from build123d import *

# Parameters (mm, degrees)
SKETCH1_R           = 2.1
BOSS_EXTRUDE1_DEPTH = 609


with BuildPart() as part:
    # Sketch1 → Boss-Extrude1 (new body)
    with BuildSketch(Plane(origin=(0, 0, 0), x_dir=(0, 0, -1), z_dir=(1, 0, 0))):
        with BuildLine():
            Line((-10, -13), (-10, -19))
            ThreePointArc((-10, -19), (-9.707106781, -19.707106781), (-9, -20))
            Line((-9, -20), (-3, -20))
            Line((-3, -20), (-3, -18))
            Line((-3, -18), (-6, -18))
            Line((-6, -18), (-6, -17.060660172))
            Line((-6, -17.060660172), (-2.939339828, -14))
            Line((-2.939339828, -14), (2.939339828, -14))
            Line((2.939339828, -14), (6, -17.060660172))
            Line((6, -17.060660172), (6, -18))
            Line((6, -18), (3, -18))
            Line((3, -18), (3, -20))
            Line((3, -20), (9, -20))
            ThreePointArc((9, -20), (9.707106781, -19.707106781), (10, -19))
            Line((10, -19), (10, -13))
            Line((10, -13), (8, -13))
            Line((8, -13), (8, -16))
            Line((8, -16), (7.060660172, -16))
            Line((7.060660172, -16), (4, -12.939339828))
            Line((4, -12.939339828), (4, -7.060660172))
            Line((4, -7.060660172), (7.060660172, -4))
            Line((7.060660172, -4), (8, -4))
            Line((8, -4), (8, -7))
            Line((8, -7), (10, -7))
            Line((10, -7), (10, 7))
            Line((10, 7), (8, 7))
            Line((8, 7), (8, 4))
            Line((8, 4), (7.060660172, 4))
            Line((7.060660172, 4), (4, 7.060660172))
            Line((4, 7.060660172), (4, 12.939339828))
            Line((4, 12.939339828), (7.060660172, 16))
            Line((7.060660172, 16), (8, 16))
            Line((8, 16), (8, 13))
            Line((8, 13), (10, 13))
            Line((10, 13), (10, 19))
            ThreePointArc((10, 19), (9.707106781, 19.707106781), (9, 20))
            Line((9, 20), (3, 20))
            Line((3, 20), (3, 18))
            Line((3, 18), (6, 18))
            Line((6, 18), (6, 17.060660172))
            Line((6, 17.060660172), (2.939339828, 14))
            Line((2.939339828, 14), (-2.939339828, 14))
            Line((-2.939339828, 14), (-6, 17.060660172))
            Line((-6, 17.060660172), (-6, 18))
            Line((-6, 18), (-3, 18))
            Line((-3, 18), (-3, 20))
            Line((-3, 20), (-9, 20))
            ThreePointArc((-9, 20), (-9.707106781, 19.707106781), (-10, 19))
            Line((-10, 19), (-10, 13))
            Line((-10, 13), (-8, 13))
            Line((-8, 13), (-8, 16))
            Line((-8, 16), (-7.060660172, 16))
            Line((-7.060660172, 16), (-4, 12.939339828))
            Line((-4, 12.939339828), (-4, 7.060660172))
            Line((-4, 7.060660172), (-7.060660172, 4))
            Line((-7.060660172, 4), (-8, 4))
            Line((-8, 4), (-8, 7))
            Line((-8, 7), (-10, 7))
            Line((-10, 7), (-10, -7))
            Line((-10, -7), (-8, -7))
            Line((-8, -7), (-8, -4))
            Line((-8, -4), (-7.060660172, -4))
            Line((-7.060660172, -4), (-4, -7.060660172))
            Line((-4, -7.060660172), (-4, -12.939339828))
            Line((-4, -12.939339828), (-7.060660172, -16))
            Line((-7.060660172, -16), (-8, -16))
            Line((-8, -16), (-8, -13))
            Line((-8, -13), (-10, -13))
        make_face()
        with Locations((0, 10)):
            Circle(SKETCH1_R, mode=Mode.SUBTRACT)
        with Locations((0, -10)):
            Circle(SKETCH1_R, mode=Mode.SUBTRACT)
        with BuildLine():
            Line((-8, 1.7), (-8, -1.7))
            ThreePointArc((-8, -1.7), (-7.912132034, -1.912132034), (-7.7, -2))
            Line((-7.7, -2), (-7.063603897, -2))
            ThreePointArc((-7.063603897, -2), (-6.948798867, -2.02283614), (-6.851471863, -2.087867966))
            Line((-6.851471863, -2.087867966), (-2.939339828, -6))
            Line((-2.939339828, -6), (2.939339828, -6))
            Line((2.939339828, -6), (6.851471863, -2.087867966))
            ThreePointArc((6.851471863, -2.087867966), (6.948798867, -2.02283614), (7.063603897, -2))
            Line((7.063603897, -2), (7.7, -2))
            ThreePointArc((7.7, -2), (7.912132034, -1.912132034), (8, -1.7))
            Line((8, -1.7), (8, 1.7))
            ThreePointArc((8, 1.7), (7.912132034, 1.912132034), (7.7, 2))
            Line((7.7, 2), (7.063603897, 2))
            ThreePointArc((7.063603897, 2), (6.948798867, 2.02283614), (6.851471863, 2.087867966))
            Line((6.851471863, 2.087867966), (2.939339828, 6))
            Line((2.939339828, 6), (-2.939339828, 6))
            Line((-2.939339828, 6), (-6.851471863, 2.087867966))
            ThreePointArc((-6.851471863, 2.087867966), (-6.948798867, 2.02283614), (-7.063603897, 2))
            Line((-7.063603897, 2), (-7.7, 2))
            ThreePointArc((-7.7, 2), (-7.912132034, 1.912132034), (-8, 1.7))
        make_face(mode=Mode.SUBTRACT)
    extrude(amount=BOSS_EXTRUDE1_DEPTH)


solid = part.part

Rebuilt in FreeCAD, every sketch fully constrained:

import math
import FreeCAD as App
import Part
import Sketcher

V = App.Vector
Q = App.Units.Quantity

doc = App.newDocument("Part")
body = doc.addObject("PartDesign::Body", "Body")

sketch1 = body.newObject("Sketcher::SketchObject", "Sketch")
sketch1.AttachmentSupport = (doc.getObject("YZ_Plane"), [""])
sketch1.MapMode = "FlatFace"
sketch1.addGeometry(Part.LineSegment(V(-13, 10, 0), V(-19, 10, 0)), False)
sketch1.addGeometry(Part.ArcOfCircle(Part.Circle(V(-19, 9, 0), V(0, 0, 1), 1), math.radians(90), math.radians(180)), False)
sketch1.addGeometry(Part.LineSegment(V(-20, 9, 0), V(-20, 3, 0)), False)
sketch1.addGeometry(Part.LineSegment(V(-20, 3, 0), V(-18, 3, 0)), False)
sketch1.addGeometry(Part.LineSegment(V(-18, 3, 0), V(-18, 6, 0)), False)
sketch1.addGeometry(Part.LineSegment(V(-18, 6, 0), V(-17.06066, 6, 0)), False)
sketch1.addGeometry(Part.LineSegment(V(-17.06066, 6, 0), V(-14, 2.93934, 0)), False)
sketch1.addGeometry(Part.LineSegment(V(-14, 2.93934, 0), V(-14, -2.93934, 0)), False)
sketch1.addGeometry(Part.LineSegment(V(-14, -2.93934, 0), V(-17.06066, -6, 0)), False)
sketch1.addGeometry(Part.LineSegment(V(-17.06066, -6, 0), V(-18, -6, 0)), False)
sketch1.addGeometry(Part.LineSegment(V(-18, -6, 0), V(-18, -3, 0)), False)
sketch1.addGeometry(Part.LineSegment(V(-18, -3, 0), V(-20, -3, 0)), False)
sketch1.addGeometry(Part.LineSegment(V(-20, -3, 0), V(-20, -9, 0)), False)
sketch1.addGeometry(Part.ArcOfCircle(Part.Circle(V(-19, -9, 0), V(0, 0, 1), 1), math.radians(-180), math.radians(-90)), False)
sketch1.addGeometry(Part.LineSegment(V(-19, -10, 0), V(-13, -10, 0)), False)
sketch1.addGeometry(Part.LineSegment(V(-13, -10, 0), V(-13, -8, 0)), False)
sketch1.addGeometry(Part.LineSegment(V(-13, -8, 0), V(-16, -8, 0)), False)
sketch1.addGeometry(Part.LineSegment(V(-16, -8, 0), V(-16, -7.06066, 0)), False)
sketch1.addGeometry(Part.LineSegment(V(-16, -7.06066, 0), V(-12.93934, -4, 0)), False)
sketch1.addGeometry(Part.LineSegment(V(-12.93934, -4, 0), V(-7.06066, -4, 0)), False)
sketch1.addGeometry(Part.LineSegment(V(-7.06066, -4, 0), V(-4, -7.06066, 0)), False)
sketch1.addGeometry(Part.LineSegment(V(-4, -7.06066, 0), V(-4, -8, 0)), False)
sketch1.addGeometry(Part.LineSegment(V(-4, -8, 0), V(-7, -8, 0)), False)
sketch1.addGeometry(Part.LineSegment(V(-7, -8, 0), V(-7, -10, 0)), False)
sketch1.addGeometry(Part.LineSegment(V(-7, -10, 0), V(7, -10, 0)), False)
sketch1.addGeometry(Part.LineSegment(V(7, -10, 0), V(7, -8, 0)), False)
sketch1.addGeometry(Part.LineSegment(V(7, -8, 0), V(4, -8, 0)), False)
sketch1.addGeometry(Part.LineSegment(V(4, -8, 0), V(4, -7.06066, 0)), False)
sketch1.addGeometry(Part.LineSegment(V(4, -7.06066, 0), V(7.06066, -4, 0)), False)
sketch1.addGeometry(Part.LineSegment(V(7.06066, -4, 0), V(12.93934, -4, 0)), False)
sketch1.addGeometry(Part.LineSegment(V(12.93934, -4, 0), V(16, -7.06066, 0)), False)
sketch1.addGeometry(Part.LineSegment(V(16, -7.06066, 0), V(16, -8, 0)), False)
sketch1.addGeometry(Part.LineSegment(V(16, -8, 0), V(13, -8, 0)), False)
sketch1.addGeometry(Part.LineSegment(V(13, -8, 0), V(13, -10, 0)), False)
sketch1.addGeometry(Part.LineSegment(V(13, -10, 0), V(19, -10, 0)), False)
sketch1.addGeometry(Part.ArcOfCircle(Part.Circle(V(19, -9, 0), V(0, 0, 1), 1), math.radians(-90), math.radians(0)), False)
sketch1.addGeometry(Part.LineSegment(V(20, -9, 0), V(20, -3, 0)), False)
sketch1.addGeometry(Part.LineSegment(V(20, -3, 0), V(18, -3, 0)), False)
sketch1.addGeometry(Part.LineSegment(V(18, -3, 0), V(18, -6, 0)), False)
sketch1.addGeometry(Part.LineSegment(V(18, -6, 0), V(17.06066, -6, 0)), False)
sketch1.addGeometry(Part.LineSegment(V(17.06066, -6, 0), V(14, -2.93934, 0)), False)
sketch1.addGeometry(Part.LineSegment(V(14, -2.93934, 0), V(14, 2.93934, 0)), False)
sketch1.addGeometry(Part.LineSegment(V(14, 2.93934, 0), V(17.06066, 6, 0)), False)
sketch1.addGeometry(Part.LineSegment(V(17.06066, 6, 0), V(18, 6, 0)), False)
sketch1.addGeometry(Part.LineSegment(V(18, 6, 0), V(18, 3, 0)), False)
sketch1.addGeometry(Part.LineSegment(V(18, 3, 0), V(20, 3, 0)), False)
sketch1.addGeometry(Part.LineSegment(V(20, 3, 0), V(20, 9, 0)), False)
sketch1.addGeometry(Part.ArcOfCircle(Part.Circle(V(19, 9, 0), V(0, 0, 1), 1), math.radians(0), math.radians(90)), False)
sketch1.addGeometry(Part.LineSegment(V(19, 10, 0), V(13, 10, 0)), False)
sketch1.addGeometry(Part.LineSegment(V(13, 10, 0), V(13, 8, 0)), False)
sketch1.addGeometry(Part.LineSegment(V(13, 8, 0), V(16, 8, 0)), False)
sketch1.addGeometry(Part.LineSegment(V(16, 8, 0), V(16, 7.06066, 0)), False)
sketch1.addGeometry(Part.LineSegment(V(16, 7.06066, 0), V(12.93934, 4, 0)), False)
sketch1.addGeometry(Part.LineSegment(V(12.93934, 4, 0), V(7.06066, 4, 0)), False)
sketch1.addGeometry(Part.LineSegment(V(7.06066, 4, 0), V(4, 7.06066, 0)), False)
sketch1.addGeometry(Part.LineSegment(V(4, 7.06066, 0), V(4, 8, 0)), False)
sketch1.addGeometry(Part.LineSegment(V(4, 8, 0), V(7, 8, 0)), False)
sketch1.addGeometry(Part.LineSegment(V(7, 8, 0), V(7, 10, 0)), False)
sketch1.addGeometry(Part.LineSegment(V(7, 10, 0), V(-7, 10, 0)), False)
sketch1.addGeometry(Part.LineSegment(V(-7, 10, 0), V(-7, 8, 0)), False)
sketch1.addGeometry(Part.LineSegment(V(-7, 8, 0), V(-4, 8, 0)), False)
sketch1.addGeometry(Part.LineSegment(V(-4, 8, 0), V(-4, 7.06066, 0)), False)
sketch1.addGeometry(Part.LineSegment(V(-4, 7.06066, 0), V(-7.06066, 4, 0)), False)
sketch1.addGeometry(Part.LineSegment(V(-7.06066, 4, 0), V(-12.93934, 4, 0)), False)
sketch1.addGeometry(Part.LineSegment(V(-12.93934, 4, 0), V(-16, 7.06066, 0)), False)
sketch1.addGeometry(Part.LineSegment(V(-16, 7.06066, 0), V(-16, 8, 0)), False)
sketch1.addGeometry(Part.LineSegment(V(-16, 8, 0), V(-13, 8, 0)), False)
sketch1.addGeometry(Part.LineSegment(V(-13, 8, 0), V(-13, 10, 0)), False)
sketch1.addGeometry(Part.Circle(V(-10, 0, 0), V(0, 0, 1), 2.1), False)
sketch1.addGeometry(Part.LineSegment(V(-1.7, 8, 0), V(1.7, 8, 0)), False)
sketch1.addGeometry(Part.ArcOfCircle(Part.Circle(V(1.7, 7.7, 0), V(0, 0, 1), 0.3), math.radians(0), math.radians(90)), False)
sketch1.addGeometry(Part.LineSegment(V(2, 7.7, 0), V(2, 7.063604, 0)), False)
sketch1.addGeometry(Part.ArcOfCircle(Part.Circle(V(2.3, 7.063604, 0), V(0, 0, 1), 0.3), math.radians(180), math.radians(225.000001)), False)
sketch1.addGeometry(Part.LineSegment(V(2.087868, 6.851472, 0), V(6, 2.93934, 0)), False)
sketch1.addGeometry(Part.LineSegment(V(6, 2.93934, 0), V(6, -2.93934, 0)), False)
sketch1.addGeometry(Part.LineSegment(V(6, -2.93934, 0), V(2.087868, -6.851472, 0)), False)
sketch1.addGeometry(Part.ArcOfCircle(Part.Circle(V(2.3, -7.063604, 0), V(0, 0, 1), 0.3), math.radians(134.999999), math.radians(180)), False)
sketch1.addGeometry(Part.LineSegment(V(2, -7.063604, 0), V(2, -7.7, 0)), False)
sketch1.addGeometry(Part.ArcOfCircle(Part.Circle(V(1.7, -7.7, 0), V(0, 0, 1), 0.3), math.radians(-90), math.radians(0)), False)
sketch1.addGeometry(Part.LineSegment(V(1.7, -8, 0), V(-1.7, -8, 0)), False)
sketch1.addGeometry(Part.ArcOfCircle(Part.Circle(V(-1.7, -7.7, 0), V(0, 0, 1), 0.3), math.radians(-180), math.radians(-90)), False)
sketch1.addGeometry(Part.LineSegment(V(-2, -7.7, 0), V(-2, -7.063604, 0)), False)
sketch1.addGeometry(Part.ArcOfCircle(Part.Circle(V(-2.3, -7.063604, 0), V(0, 0, 1), 0.3), math.radians(0), math.radians(45.000001)), False)
sketch1.addGeometry(Part.LineSegment(V(-2.087868, -6.851472, 0), V(-6, -2.93934, 0)), False)
sketch1.addGeometry(Part.LineSegment(V(-6, -2.93934, 0), V(-6, 2.93934, 0)), False)
sketch1.addGeometry(Part.LineSegment(V(-6, 2.93934, 0), V(-2.087868, 6.851472, 0)), False)
sketch1.addGeometry(Part.ArcOfCircle(Part.Circle(V(-2.3, 7.063604, 0), V(0, 0, 1), 0.3), math.radians(-45.000001), math.radians(0)), False)
sketch1.addGeometry(Part.LineSegment(V(-2, 7.063604, 0), V(-2, 7.7, 0)), False)
sketch1.addGeometry(Part.ArcOfCircle(Part.Circle(V(-1.7, 7.7, 0), V(0, 0, 1), 0.3), math.radians(90), math.radians(180)), False)
sketch1.addGeometry(Part.Circle(V(10, 0, 0), V(0, 0, 1), 2.1), False)
sketch1.addConstraint(Sketcher.Constraint("Tangent", 0, 2, 1, 1))
sketch1.addConstraint(Sketcher.Constraint("Tangent", 1, 2, 2, 1))
sketch1.addConstraint(Sketcher.Constraint("Coincident", 2, 2, 3, 1))
sketch1.addConstraint(Sketcher.Constraint("Coincident", 3, 2, 4, 1))
sketch1.addConstraint(Sketcher.Constraint("Coincident", 4, 2, 5, 1))
sketch1.addConstraint(Sketcher.Constraint("Coincident", 5, 2, 6, 1))
sketch1.addConstraint(Sketcher.Constraint("Coincident", 6, 2, 7, 1))
sketch1.addConstraint(Sketcher.Constraint("Coincident", 7, 2, 8, 1))
sketch1.addConstraint(Sketcher.Constraint("Coincident", 8, 2, 9, 1))
sketch1.addConstraint(Sketcher.Constraint("Coincident", 9, 2, 10, 1))
sketch1.addConstraint(Sketcher.Constraint("Coincident", 10, 2, 11, 1))
sketch1.addConstraint(Sketcher.Constraint("Coincident", 11, 2, 12, 1))
sketch1.addConstraint(Sketcher.Constraint("Tangent", 12, 2, 13, 1))
sketch1.addConstraint(Sketcher.Constraint("Tangent", 13, 2, 14, 1))
sketch1.addConstraint(Sketcher.Constraint("Coincident", 14, 2, 15, 1))
sketch1.addConstraint(Sketcher.Constraint("Coincident", 15, 2, 16, 1))
sketch1.addConstraint(Sketcher.Constraint("Coincident", 16, 2, 17, 1))
sketch1.addConstraint(Sketcher.Constraint("Coincident", 17, 2, 18, 1))
sketch1.addConstraint(Sketcher.Constraint("Coincident", 18, 2, 19, 1))
sketch1.addConstraint(Sketcher.Constraint("Coincident", 19, 2, 20, 1))
sketch1.addConstraint(Sketcher.Constraint("Coincident", 20, 2, 21, 1))
sketch1.addConstraint(Sketcher.Constraint("Coincident", 21, 2, 22, 1))
sketch1.addConstraint(Sketcher.Constraint("Coincident", 22, 2, 23, 1))
sketch1.addConstraint(Sketcher.Constraint("Coincident", 23, 2, 24, 1))
sketch1.addConstraint(Sketcher.Constraint("Coincident", 24, 2, 25, 1))
sketch1.addConstraint(Sketcher.Constraint("Coincident", 25, 2, 26, 1))
sketch1.addConstraint(Sketcher.Constraint("Coincident", 26, 2, 27, 1))
sketch1.addConstraint(Sketcher.Constraint("Coincident", 27, 2, 28, 1))
sketch1.addConstraint(Sketcher.Constraint("Coincident", 28, 2, 29, 1))
sketch1.addConstraint(Sketcher.Constraint("Coincident", 29, 2, 30, 1))
sketch1.addConstraint(Sketcher.Constraint("Coincident", 30, 2, 31, 1))
sketch1.addConstraint(Sketcher.Constraint("Coincident", 31, 2, 32, 1))
sketch1.addConstraint(Sketcher.Constraint("Coincident", 32, 2, 33, 1))
sketch1.addConstraint(Sketcher.Constraint("Coincident", 33, 2, 34, 1))
sketch1.addConstraint(Sketcher.Constraint("Tangent", 34, 2, 35, 1))
sketch1.addConstraint(Sketcher.Constraint("Tangent", 35, 2, 36, 1))
sketch1.addConstraint(Sketcher.Constraint("Coincident", 36, 2, 37, 1))
sketch1.addConstraint(Sketcher.Constraint("Coincident", 37, 2, 38, 1))
sketch1.addConstraint(Sketcher.Constraint("Coincident", 38, 2, 39, 1))
sketch1.addConstraint(Sketcher.Constraint("Coincident", 39, 2, 40, 1))
sketch1.addConstraint(Sketcher.Constraint("Coincident", 40, 2, 41, 1))
sketch1.addConstraint(Sketcher.Constraint("Coincident", 41, 2, 42, 1))
sketch1.addConstraint(Sketcher.Constraint("Coincident", 42, 2, 43, 1))
sketch1.addConstraint(Sketcher.Constraint("Coincident", 43, 2, 44, 1))
sketch1.addConstraint(Sketcher.Constraint("Coincident", 44, 2, 45, 1))
sketch1.addConstraint(Sketcher.Constraint("Coincident", 45, 2, 46, 1))
sketch1.addConstraint(Sketcher.Constraint("Tangent", 46, 2, 47, 1))
sketch1.addConstraint(Sketcher.Constraint("Tangent", 47, 2, 48, 1))
sketch1.addConstraint(Sketcher.Constraint("Coincident", 48, 2, 49, 1))
sketch1.addConstraint(Sketcher.Constraint("Coincident", 49, 2, 50, 1))
sketch1.addConstraint(Sketcher.Constraint("Coincident", 50, 2, 51, 1))
sketch1.addConstraint(Sketcher.Constraint("Coincident", 51, 2, 52, 1))
sketch1.addConstraint(Sketcher.Constraint("Coincident", 52, 2, 53, 1))
sketch1.addConstraint(Sketcher.Constraint("Coincident", 53, 2, 54, 1))
sketch1.addConstraint(Sketcher.Constraint("Coincident", 54, 2, 55, 1))
sketch1.addConstraint(Sketcher.Constraint("Coincident", 55, 2, 56, 1))
sketch1.addConstraint(Sketcher.Constraint("Coincident", 56, 2, 57, 1))
sketch1.addConstraint(Sketcher.Constraint("Coincident", 57, 2, 58, 1))
sketch1.addConstraint(Sketcher.Constraint("Coincident", 58, 2, 59, 1))
sketch1.addConstraint(Sketcher.Constraint("Coincident", 59, 2, 60, 1))
sketch1.addConstraint(Sketcher.Constraint("Coincident", 60, 2, 61, 1))
sketch1.addConstraint(Sketcher.Constraint("Coincident", 61, 2, 62, 1))
sketch1.addConstraint(Sketcher.Constraint("Coincident", 62, 2, 63, 1))
sketch1.addConstraint(Sketcher.Constraint("Coincident", 63, 2, 64, 1))
sketch1.addConstraint(Sketcher.Constraint("Coincident", 64, 2, 65, 1))
sketch1.addConstraint(Sketcher.Constraint("Coincident", 65, 2, 66, 1))
sketch1.addConstraint(Sketcher.Constraint("Coincident", 66, 2, 67, 1))
sketch1.addConstraint(Sketcher.Constraint("Coincident", 67, 2, 0, 1))
sketch1.addConstraint(Sketcher.Constraint("Tangent", 69, 2, 70, 2))
sketch1.addConstraint(Sketcher.Constraint("Tangent", 70, 1, 71, 1))
sketch1.addConstraint(Sketcher.Constraint("Tangent", 71, 2, 72, 1))
sketch1.addConstraint(Sketcher.Constraint("Tangent", 72, 2, 73, 1))
sketch1.addConstraint(Sketcher.Constraint("Coincident", 73, 2, 74, 1))
sketch1.addConstraint(Sketcher.Constraint("Coincident", 74, 2, 75, 1))
sketch1.addConstraint(Sketcher.Constraint("Tangent", 75, 2, 76, 1))
sketch1.addConstraint(Sketcher.Constraint("Tangent", 76, 2, 77, 1))
sketch1.addConstraint(Sketcher.Constraint("Tangent", 77, 2, 78, 2))
sketch1.addConstraint(Sketcher.Constraint("Tangent", 78, 1, 79, 1))
sketch1.addConstraint(Sketcher.Constraint("Tangent", 79, 2, 80, 2))
sketch1.addConstraint(Sketcher.Constraint("Tangent", 80, 1, 81, 1))
sketch1.addConstraint(Sketcher.Constraint("Tangent", 81, 2, 82, 1))
sketch1.addConstraint(Sketcher.Constraint("Tangent", 82, 2, 83, 1))
sketch1.addConstraint(Sketcher.Constraint("Coincident", 83, 2, 84, 1))
sketch1.addConstraint(Sketcher.Constraint("Coincident", 84, 2, 85, 1))
sketch1.addConstraint(Sketcher.Constraint("Tangent", 85, 2, 86, 1))
sketch1.addConstraint(Sketcher.Constraint("Tangent", 86, 2, 87, 1))
sketch1.addConstraint(Sketcher.Constraint("Tangent", 87, 2, 88, 2))
sketch1.addConstraint(Sketcher.Constraint("Tangent", 88, 1, 69, 1))
sketch1.addConstraint(Sketcher.Constraint("Horizontal", 0))
sketch1.addConstraint(Sketcher.Constraint("Vertical", 2))
sketch1.addConstraint(Sketcher.Constraint("Horizontal", 3))
sketch1.addConstraint(Sketcher.Constraint("Vertical", 4))
sketch1.addConstraint(Sketcher.Constraint("Horizontal", 5))
sketch1.addConstraint(Sketcher.Constraint("Vertical", 7))
sketch1.addConstraint(Sketcher.Constraint("Horizontal", 9))
sketch1.addConstraint(Sketcher.Constraint("Vertical", 10))
sketch1.addConstraint(Sketcher.Constraint("Horizontal", 11))
sketch1.addConstraint(Sketcher.Constraint("Vertical", 12))
sketch1.addConstraint(Sketcher.Constraint("Horizontal", 14))
sketch1.addConstraint(Sketcher.Constraint("Vertical", 15))
sketch1.addConstraint(Sketcher.Constraint("Horizontal", 16))
sketch1.addConstraint(Sketcher.Constraint("Vertical", 17))
sketch1.addConstraint(Sketcher.Constraint("Horizontal", 19))
sketch1.addConstraint(Sketcher.Constraint("Vertical", 21))
sketch1.addConstraint(Sketcher.Constraint("Horizontal", 22))
sketch1.addConstraint(Sketcher.Constraint("Vertical", 23))
sketch1.addConstraint(Sketcher.Constraint("Horizontal", 24))
sketch1.addConstraint(Sketcher.Constraint("Vertical", 25))
sketch1.addConstraint(Sketcher.Constraint("Horizontal", 26))
sketch1.addConstraint(Sketcher.Constraint("Vertical", 27))
sketch1.addConstraint(Sketcher.Constraint("Horizontal", 29))
sketch1.addConstraint(Sketcher.Constraint("Vertical", 31))
sketch1.addConstraint(Sketcher.Constraint("Horizontal", 32))
sketch1.addConstraint(Sketcher.Constraint("Vertical", 33))
sketch1.addConstraint(Sketcher.Constraint("Horizontal", 34))
sketch1.addConstraint(Sketcher.Constraint("Vertical", 36))
sketch1.addConstraint(Sketcher.Constraint("Horizontal", 37))
sketch1.addConstraint(Sketcher.Constraint("Vertical", 38))
sketch1.addConstraint(Sketcher.Constraint("Horizontal", 39))
sketch1.addConstraint(Sketcher.Constraint("Vertical", 41))
sketch1.addConstraint(Sketcher.Constraint("Horizontal", 43))
sketch1.addConstraint(Sketcher.Constraint("Vertical", 44))
sketch1.addConstraint(Sketcher.Constraint("Horizontal", 45))
sketch1.addConstraint(Sketcher.Constraint("Vertical", 46))
sketch1.addConstraint(Sketcher.Constraint("Horizontal", 48))
sketch1.addConstraint(Sketcher.Constraint("Vertical", 49))
sketch1.addConstraint(Sketcher.Constraint("Horizontal", 50))
sketch1.addConstraint(Sketcher.Constraint("Vertical", 51))
sketch1.addConstraint(Sketcher.Constraint("Horizontal", 53))
sketch1.addConstraint(Sketcher.Constraint("Vertical", 55))
sketch1.addConstraint(Sketcher.Constraint("Horizontal", 56))
sketch1.addConstraint(Sketcher.Constraint("Vertical", 57))
sketch1.addConstraint(Sketcher.Constraint("Horizontal", 58))
sketch1.addConstraint(Sketcher.Constraint("Vertical", 59))
sketch1.addConstraint(Sketcher.Constraint("Horizontal", 60))
sketch1.addConstraint(Sketcher.Constraint("Vertical", 61))
sketch1.addConstraint(Sketcher.Constraint("Horizontal", 63))
sketch1.addConstraint(Sketcher.Constraint("Vertical", 65))
sketch1.addConstraint(Sketcher.Constraint("Horizontal", 66))
sketch1.addConstraint(Sketcher.Constraint("Vertical", 67))
sketch1.addConstraint(Sketcher.Constraint("Horizontal", 69))
sketch1.addConstraint(Sketcher.Constraint("Vertical", 71))
sketch1.addConstraint(Sketcher.Constraint("Vertical", 74))
sketch1.addConstraint(Sketcher.Constraint("Vertical", 77))
sketch1.addConstraint(Sketcher.Constraint("Horizontal", 79))
sketch1.addConstraint(Sketcher.Constraint("Vertical", 81))
sketch1.addConstraint(Sketcher.Constraint("Vertical", 84))
sketch1.addConstraint(Sketcher.Constraint("Vertical", 87))
sketch1.addConstraint(Sketcher.Constraint("Equal", 1, 13))
sketch1.addConstraint(Sketcher.Constraint("Equal", 13, 35))
sketch1.addConstraint(Sketcher.Constraint("Equal", 35, 47))
sketch1.addConstraint(Sketcher.Constraint("Equal", 70, 72))
sketch1.addConstraint(Sketcher.Constraint("Equal", 72, 76))
sketch1.addConstraint(Sketcher.Constraint("Equal", 76, 78))
sketch1.addConstraint(Sketcher.Constraint("Equal", 78, 80))
sketch1.addConstraint(Sketcher.Constraint("Equal", 80, 82))
sketch1.addConstraint(Sketcher.Constraint("Equal", 82, 86))
sketch1.addConstraint(Sketcher.Constraint("Equal", 86, 88))
sketch1.addConstraint(Sketcher.Constraint("Equal", 68, 89))
sketch1.addConstraint(Sketcher.Constraint("Symmetric", 1, 3, 35, 3, -1, 1))
sketch1.addConstraint(Sketcher.Constraint("Symmetric", 13, 3, 47, 3, -1, 1))
sketch1.addConstraint(Sketcher.Constraint("Symmetric", 70, 3, 80, 3, -1, 1))
sketch1.addConstraint(Sketcher.Constraint("Symmetric", 76, 3, 86, 3, -1, 1))
sketch1.addConstraint(Sketcher.Constraint("Symmetric", 68, 3, 89, 3, -1, 1))
sketch1.addConstraint(Sketcher.Constraint("Symmetric", 3, 2, 37, 2, -1, 1))
sketch1.addConstraint(Sketcher.Constraint("Symmetric", 5, 2, 39, 2, -1, 1))
sketch1.addConstraint(Sketcher.Constraint("Symmetric", 6, 2, 40, 2, -1, 1))
sketch1.addConstraint(Sketcher.Constraint("Symmetric", 8, 2, 42, 2, -1, 1))
sketch1.addConstraint(Sketcher.Constraint("Symmetric", 10, 2, 44, 2, -1, 1))
sketch1.addConstraint(Sketcher.Constraint("Symmetric", 15, 2, 49, 2, -1, 1))
sketch1.addConstraint(Sketcher.Constraint("Symmetric", 17, 2, 51, 2, -1, 1))
sketch1.addConstraint(Sketcher.Constraint("Symmetric", 18, 2, 52, 2, -1, 1))
sketch1.addConstraint(Sketcher.Constraint("Symmetric", 20, 2, 54, 2, -1, 1))
sketch1.addConstraint(Sketcher.Constraint("Symmetric", 22, 2, 56, 2, -1, 1))
sketch1.addConstraint(Sketcher.Constraint("Symmetric", 24, 2, 58, 2, -1, 1))
sketch1.addConstraint(Sketcher.Constraint("Symmetric", 26, 2, 60, 2, -1, 1))
sketch1.addConstraint(Sketcher.Constraint("Symmetric", 28, 2, 62, 2, -1, 1))
sketch1.addConstraint(Sketcher.Constraint("Symmetric", 30, 2, 64, 2, -1, 1))
sketch1.addConstraint(Sketcher.Constraint("Symmetric", 32, 2, 66, 2, -1, 1))
sketch1.addConstraint(Sketcher.Constraint("Symmetric", 72, 2, 82, 2, -1, 1))
sketch1.addConstraint(Sketcher.Constraint("Symmetric", 74, 2, 84, 2, -1, 1))
sketch1.addConstraint(Sketcher.Constraint("Symmetric", 13, 3, 35, 3, -2))
sketch1.addConstraint(Sketcher.Constraint("Symmetric", 76, 3, 82, 3, -2))
sketch1.addConstraint(Sketcher.Constraint("Symmetric", 22, 2, 25, 2, -2))
sketch1.addConstraint(Sketcher.Constraint("Symmetric", 20, 2, 27, 2, -2))
sketch1.addConstraint(Sketcher.Constraint("Symmetric", 19, 2, 28, 2, -2))
sketch1.addConstraint(Sketcher.Constraint("Symmetric", 17, 2, 30, 2, -2))
sketch1.addConstraint(Sketcher.Constraint("Symmetric", 15, 2, 32, 2, -2))
sketch1.addConstraint(Sketcher.Constraint("Symmetric", 10, 2, 37, 2, -2))
sketch1.addConstraint(Sketcher.Constraint("Symmetric", 8, 2, 39, 2, -2))
sketch1.addConstraint(Sketcher.Constraint("PointOnObject", 68, 3, -1))
sketch1.addConstraint(Sketcher.Constraint("Perpendicular", 6, 8))
sketch1.addConstraint(Sketcher.Constraint("Parallel", 8, 18))
sketch1.addConstraint(Sketcher.Constraint("Perpendicular", 18, 20))
sketch1.addConstraint(Sketcher.Constraint("Perpendicular", 20, 28))
sketch1.addConstraint(Sketcher.Constraint("Perpendicular", 28, 30))
sketch1.addConstraint(Sketcher.Constraint("Perpendicular", 40, 42))
sketch1.addConstraint(Sketcher.Constraint("Perpendicular", 52, 54))
sketch1.addConstraint(Sketcher.Constraint("Perpendicular", 54, 62))
sketch1.addConstraint(Sketcher.Constraint("Perpendicular", 62, 64))
sketch1.addConstraint(Sketcher.Constraint("Parallel", 64, 73))
sketch1.addConstraint(Sketcher.Constraint("Perpendicular", 73, 75))
sketch1.addConstraint(Sketcher.Constraint("Horizontal", 17, 2, 20, 2))
sketch1.addConstraint(Sketcher.Constraint("Horizontal", 16, 2, 21, 2))
sketch1.addConstraint(Sketcher.Constraint("Horizontal", 14, 2, 23, 2))
sketch1.addConstraint(Sketcher.Constraint("Horizontal", 66, 2, 69, 2))
sketch1.addConstraint(Sketcher.Constraint("Horizontal", 41, 2, 73, 2))
sketch1.addConstraint(Sketcher.Constraint("Equal", 16, 22))
sketch1.addConstraint(Sketcher.Constraint("Equal", 48, 2))
sketch1.addConstraint(Sketcher.Constraint("Equal", 66, 4))
sketch1.addConstraint(Sketcher.Constraint("Equal", 63, 7))
sketch1.addConstraint(Sketcher.Constraint("Equal", 45, 15))
sketch1.addConstraint(Sketcher.Constraint("Equal", 43, 17))
sketch1.addConstraint(Sketcher.Constraint("Equal", 8, 18))
sketch1.addConstraint(Sketcher.Constraint("Radius", 1, Q("1 mm")))
sketch1.addConstraint(Sketcher.Constraint("Diameter", 68, Q("4.2 mm")))
sketch1.addConstraint(Sketcher.Constraint("Radius", 70, Q("0.3 mm")))
sketch1.addConstraint(Sketcher.Constraint("DistanceX", 0, 2, 0, 1, Q("6 mm")))
sketch1.addConstraint(Sketcher.Constraint("DistanceX", 3, 1, 3, 2, Q("2 mm")))
sketch1.addConstraint(Sketcher.Constraint("DistanceX", 16, 2, 16, 1, Q("3 mm")))
sketch1.addConstraint(Sketcher.Constraint("DistanceX", 24, 1, 24, 2, Q("14 mm")))
sketch1.addConstraint(Sketcher.Constraint("DistanceX", 69, 1, 69, 2, Q("3.4 mm")))
sketch1.addConstraint(Sketcher.Constraint("DistanceX", 1, 3, -1, 1, Q("19 mm")))
sketch1.addConstraint(Sketcher.Constraint("DistanceX", 68, 3, -1, 1, Q("10 mm")))
sketch1.addConstraint(Sketcher.Constraint("DistanceX", 6, 2, -1, 1, Q("14 mm")))
sketch1.addConstraint(Sketcher.Constraint("DistanceX", -1, 1, 73, 2, Q("6 mm")))
sketch1.addConstraint(Sketcher.Constraint("DistanceX", 5, 1, 5, 2, Q("0.93934 mm")))
pad1 = body.newObject("PartDesign::Pad", "Pad")
pad1.Profile = sketch1
pad1.Length = 609

doc.recompute()
